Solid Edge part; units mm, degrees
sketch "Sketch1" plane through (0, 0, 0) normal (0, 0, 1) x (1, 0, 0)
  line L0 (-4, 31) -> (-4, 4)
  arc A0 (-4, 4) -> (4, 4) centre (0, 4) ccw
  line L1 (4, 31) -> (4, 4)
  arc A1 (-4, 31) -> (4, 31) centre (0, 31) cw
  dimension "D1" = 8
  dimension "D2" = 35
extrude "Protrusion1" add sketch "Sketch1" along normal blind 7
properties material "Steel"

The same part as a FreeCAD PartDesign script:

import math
import FreeCAD as App
import Part
import Sketcher

doc = App.newDocument("Part")
body = doc.addObject("PartDesign::Body", "Body")

# Sketch on XY plane
sketch1 = body.newObject("Sketcher::SketchObject", "Sketch")
sketch1.AttachmentSupport = (doc.getObject("XY_Plane"), [""])
sketch1.MapMode = "FlatFace"
sketch1.addGeometry(Part.ArcOfCircle(Part.Circle(App.Vector(0, 31, 0), App.Vector(0, 0, 1), 4), math.radians(0), math.radians(180)), False)
sketch1.addGeometry(Part.LineSegment(App.Vector(-4, 31, 0), App.Vector(-4, 4, 0)), False)
sketch1.addGeometry(Part.ArcOfCircle(Part.Circle(App.Vector(0, 4, 0), App.Vector(0, 0, 1), 4), math.radians(180), math.radians(360)), False)
sketch1.addGeometry(Part.LineSegment(App.Vector(4, 4, 0), App.Vector(4, 31, 0)), False)
sketch1.addConstraint(Sketcher.Constraint("Tangent", 0, 2, 1, 1))
sketch1.addConstraint(Sketcher.Constraint("Tangent", 1, 2, 2, 1))
sketch1.addConstraint(Sketcher.Constraint("Tangent", 2, 2, 3, 1))
sketch1.addConstraint(Sketcher.Constraint("Tangent", 3, 2, 0, 1))
sketch1.addConstraint(Sketcher.Constraint("Vertical", 1))
sketch1.addConstraint(Sketcher.Constraint("Vertical", 3))
sketch1.addConstraint(Sketcher.Constraint("PointOnObject", 0, 3, -2))
sketch1.addConstraint(Sketcher.Constraint("Radius", 0, 4.0))
sketch1.addConstraint(Sketcher.Constraint("DistanceY", 1, 2, 1, 1, 27.0))
sketch1.addConstraint(Sketcher.Constraint("DistanceY", -1, 1, 0, 3, 31.0))
pad1 = body.newObject("PartDesign::Pad", "Pad")
pad1.Profile = sketch1
pad1.Length = 7

doc.recompute()
